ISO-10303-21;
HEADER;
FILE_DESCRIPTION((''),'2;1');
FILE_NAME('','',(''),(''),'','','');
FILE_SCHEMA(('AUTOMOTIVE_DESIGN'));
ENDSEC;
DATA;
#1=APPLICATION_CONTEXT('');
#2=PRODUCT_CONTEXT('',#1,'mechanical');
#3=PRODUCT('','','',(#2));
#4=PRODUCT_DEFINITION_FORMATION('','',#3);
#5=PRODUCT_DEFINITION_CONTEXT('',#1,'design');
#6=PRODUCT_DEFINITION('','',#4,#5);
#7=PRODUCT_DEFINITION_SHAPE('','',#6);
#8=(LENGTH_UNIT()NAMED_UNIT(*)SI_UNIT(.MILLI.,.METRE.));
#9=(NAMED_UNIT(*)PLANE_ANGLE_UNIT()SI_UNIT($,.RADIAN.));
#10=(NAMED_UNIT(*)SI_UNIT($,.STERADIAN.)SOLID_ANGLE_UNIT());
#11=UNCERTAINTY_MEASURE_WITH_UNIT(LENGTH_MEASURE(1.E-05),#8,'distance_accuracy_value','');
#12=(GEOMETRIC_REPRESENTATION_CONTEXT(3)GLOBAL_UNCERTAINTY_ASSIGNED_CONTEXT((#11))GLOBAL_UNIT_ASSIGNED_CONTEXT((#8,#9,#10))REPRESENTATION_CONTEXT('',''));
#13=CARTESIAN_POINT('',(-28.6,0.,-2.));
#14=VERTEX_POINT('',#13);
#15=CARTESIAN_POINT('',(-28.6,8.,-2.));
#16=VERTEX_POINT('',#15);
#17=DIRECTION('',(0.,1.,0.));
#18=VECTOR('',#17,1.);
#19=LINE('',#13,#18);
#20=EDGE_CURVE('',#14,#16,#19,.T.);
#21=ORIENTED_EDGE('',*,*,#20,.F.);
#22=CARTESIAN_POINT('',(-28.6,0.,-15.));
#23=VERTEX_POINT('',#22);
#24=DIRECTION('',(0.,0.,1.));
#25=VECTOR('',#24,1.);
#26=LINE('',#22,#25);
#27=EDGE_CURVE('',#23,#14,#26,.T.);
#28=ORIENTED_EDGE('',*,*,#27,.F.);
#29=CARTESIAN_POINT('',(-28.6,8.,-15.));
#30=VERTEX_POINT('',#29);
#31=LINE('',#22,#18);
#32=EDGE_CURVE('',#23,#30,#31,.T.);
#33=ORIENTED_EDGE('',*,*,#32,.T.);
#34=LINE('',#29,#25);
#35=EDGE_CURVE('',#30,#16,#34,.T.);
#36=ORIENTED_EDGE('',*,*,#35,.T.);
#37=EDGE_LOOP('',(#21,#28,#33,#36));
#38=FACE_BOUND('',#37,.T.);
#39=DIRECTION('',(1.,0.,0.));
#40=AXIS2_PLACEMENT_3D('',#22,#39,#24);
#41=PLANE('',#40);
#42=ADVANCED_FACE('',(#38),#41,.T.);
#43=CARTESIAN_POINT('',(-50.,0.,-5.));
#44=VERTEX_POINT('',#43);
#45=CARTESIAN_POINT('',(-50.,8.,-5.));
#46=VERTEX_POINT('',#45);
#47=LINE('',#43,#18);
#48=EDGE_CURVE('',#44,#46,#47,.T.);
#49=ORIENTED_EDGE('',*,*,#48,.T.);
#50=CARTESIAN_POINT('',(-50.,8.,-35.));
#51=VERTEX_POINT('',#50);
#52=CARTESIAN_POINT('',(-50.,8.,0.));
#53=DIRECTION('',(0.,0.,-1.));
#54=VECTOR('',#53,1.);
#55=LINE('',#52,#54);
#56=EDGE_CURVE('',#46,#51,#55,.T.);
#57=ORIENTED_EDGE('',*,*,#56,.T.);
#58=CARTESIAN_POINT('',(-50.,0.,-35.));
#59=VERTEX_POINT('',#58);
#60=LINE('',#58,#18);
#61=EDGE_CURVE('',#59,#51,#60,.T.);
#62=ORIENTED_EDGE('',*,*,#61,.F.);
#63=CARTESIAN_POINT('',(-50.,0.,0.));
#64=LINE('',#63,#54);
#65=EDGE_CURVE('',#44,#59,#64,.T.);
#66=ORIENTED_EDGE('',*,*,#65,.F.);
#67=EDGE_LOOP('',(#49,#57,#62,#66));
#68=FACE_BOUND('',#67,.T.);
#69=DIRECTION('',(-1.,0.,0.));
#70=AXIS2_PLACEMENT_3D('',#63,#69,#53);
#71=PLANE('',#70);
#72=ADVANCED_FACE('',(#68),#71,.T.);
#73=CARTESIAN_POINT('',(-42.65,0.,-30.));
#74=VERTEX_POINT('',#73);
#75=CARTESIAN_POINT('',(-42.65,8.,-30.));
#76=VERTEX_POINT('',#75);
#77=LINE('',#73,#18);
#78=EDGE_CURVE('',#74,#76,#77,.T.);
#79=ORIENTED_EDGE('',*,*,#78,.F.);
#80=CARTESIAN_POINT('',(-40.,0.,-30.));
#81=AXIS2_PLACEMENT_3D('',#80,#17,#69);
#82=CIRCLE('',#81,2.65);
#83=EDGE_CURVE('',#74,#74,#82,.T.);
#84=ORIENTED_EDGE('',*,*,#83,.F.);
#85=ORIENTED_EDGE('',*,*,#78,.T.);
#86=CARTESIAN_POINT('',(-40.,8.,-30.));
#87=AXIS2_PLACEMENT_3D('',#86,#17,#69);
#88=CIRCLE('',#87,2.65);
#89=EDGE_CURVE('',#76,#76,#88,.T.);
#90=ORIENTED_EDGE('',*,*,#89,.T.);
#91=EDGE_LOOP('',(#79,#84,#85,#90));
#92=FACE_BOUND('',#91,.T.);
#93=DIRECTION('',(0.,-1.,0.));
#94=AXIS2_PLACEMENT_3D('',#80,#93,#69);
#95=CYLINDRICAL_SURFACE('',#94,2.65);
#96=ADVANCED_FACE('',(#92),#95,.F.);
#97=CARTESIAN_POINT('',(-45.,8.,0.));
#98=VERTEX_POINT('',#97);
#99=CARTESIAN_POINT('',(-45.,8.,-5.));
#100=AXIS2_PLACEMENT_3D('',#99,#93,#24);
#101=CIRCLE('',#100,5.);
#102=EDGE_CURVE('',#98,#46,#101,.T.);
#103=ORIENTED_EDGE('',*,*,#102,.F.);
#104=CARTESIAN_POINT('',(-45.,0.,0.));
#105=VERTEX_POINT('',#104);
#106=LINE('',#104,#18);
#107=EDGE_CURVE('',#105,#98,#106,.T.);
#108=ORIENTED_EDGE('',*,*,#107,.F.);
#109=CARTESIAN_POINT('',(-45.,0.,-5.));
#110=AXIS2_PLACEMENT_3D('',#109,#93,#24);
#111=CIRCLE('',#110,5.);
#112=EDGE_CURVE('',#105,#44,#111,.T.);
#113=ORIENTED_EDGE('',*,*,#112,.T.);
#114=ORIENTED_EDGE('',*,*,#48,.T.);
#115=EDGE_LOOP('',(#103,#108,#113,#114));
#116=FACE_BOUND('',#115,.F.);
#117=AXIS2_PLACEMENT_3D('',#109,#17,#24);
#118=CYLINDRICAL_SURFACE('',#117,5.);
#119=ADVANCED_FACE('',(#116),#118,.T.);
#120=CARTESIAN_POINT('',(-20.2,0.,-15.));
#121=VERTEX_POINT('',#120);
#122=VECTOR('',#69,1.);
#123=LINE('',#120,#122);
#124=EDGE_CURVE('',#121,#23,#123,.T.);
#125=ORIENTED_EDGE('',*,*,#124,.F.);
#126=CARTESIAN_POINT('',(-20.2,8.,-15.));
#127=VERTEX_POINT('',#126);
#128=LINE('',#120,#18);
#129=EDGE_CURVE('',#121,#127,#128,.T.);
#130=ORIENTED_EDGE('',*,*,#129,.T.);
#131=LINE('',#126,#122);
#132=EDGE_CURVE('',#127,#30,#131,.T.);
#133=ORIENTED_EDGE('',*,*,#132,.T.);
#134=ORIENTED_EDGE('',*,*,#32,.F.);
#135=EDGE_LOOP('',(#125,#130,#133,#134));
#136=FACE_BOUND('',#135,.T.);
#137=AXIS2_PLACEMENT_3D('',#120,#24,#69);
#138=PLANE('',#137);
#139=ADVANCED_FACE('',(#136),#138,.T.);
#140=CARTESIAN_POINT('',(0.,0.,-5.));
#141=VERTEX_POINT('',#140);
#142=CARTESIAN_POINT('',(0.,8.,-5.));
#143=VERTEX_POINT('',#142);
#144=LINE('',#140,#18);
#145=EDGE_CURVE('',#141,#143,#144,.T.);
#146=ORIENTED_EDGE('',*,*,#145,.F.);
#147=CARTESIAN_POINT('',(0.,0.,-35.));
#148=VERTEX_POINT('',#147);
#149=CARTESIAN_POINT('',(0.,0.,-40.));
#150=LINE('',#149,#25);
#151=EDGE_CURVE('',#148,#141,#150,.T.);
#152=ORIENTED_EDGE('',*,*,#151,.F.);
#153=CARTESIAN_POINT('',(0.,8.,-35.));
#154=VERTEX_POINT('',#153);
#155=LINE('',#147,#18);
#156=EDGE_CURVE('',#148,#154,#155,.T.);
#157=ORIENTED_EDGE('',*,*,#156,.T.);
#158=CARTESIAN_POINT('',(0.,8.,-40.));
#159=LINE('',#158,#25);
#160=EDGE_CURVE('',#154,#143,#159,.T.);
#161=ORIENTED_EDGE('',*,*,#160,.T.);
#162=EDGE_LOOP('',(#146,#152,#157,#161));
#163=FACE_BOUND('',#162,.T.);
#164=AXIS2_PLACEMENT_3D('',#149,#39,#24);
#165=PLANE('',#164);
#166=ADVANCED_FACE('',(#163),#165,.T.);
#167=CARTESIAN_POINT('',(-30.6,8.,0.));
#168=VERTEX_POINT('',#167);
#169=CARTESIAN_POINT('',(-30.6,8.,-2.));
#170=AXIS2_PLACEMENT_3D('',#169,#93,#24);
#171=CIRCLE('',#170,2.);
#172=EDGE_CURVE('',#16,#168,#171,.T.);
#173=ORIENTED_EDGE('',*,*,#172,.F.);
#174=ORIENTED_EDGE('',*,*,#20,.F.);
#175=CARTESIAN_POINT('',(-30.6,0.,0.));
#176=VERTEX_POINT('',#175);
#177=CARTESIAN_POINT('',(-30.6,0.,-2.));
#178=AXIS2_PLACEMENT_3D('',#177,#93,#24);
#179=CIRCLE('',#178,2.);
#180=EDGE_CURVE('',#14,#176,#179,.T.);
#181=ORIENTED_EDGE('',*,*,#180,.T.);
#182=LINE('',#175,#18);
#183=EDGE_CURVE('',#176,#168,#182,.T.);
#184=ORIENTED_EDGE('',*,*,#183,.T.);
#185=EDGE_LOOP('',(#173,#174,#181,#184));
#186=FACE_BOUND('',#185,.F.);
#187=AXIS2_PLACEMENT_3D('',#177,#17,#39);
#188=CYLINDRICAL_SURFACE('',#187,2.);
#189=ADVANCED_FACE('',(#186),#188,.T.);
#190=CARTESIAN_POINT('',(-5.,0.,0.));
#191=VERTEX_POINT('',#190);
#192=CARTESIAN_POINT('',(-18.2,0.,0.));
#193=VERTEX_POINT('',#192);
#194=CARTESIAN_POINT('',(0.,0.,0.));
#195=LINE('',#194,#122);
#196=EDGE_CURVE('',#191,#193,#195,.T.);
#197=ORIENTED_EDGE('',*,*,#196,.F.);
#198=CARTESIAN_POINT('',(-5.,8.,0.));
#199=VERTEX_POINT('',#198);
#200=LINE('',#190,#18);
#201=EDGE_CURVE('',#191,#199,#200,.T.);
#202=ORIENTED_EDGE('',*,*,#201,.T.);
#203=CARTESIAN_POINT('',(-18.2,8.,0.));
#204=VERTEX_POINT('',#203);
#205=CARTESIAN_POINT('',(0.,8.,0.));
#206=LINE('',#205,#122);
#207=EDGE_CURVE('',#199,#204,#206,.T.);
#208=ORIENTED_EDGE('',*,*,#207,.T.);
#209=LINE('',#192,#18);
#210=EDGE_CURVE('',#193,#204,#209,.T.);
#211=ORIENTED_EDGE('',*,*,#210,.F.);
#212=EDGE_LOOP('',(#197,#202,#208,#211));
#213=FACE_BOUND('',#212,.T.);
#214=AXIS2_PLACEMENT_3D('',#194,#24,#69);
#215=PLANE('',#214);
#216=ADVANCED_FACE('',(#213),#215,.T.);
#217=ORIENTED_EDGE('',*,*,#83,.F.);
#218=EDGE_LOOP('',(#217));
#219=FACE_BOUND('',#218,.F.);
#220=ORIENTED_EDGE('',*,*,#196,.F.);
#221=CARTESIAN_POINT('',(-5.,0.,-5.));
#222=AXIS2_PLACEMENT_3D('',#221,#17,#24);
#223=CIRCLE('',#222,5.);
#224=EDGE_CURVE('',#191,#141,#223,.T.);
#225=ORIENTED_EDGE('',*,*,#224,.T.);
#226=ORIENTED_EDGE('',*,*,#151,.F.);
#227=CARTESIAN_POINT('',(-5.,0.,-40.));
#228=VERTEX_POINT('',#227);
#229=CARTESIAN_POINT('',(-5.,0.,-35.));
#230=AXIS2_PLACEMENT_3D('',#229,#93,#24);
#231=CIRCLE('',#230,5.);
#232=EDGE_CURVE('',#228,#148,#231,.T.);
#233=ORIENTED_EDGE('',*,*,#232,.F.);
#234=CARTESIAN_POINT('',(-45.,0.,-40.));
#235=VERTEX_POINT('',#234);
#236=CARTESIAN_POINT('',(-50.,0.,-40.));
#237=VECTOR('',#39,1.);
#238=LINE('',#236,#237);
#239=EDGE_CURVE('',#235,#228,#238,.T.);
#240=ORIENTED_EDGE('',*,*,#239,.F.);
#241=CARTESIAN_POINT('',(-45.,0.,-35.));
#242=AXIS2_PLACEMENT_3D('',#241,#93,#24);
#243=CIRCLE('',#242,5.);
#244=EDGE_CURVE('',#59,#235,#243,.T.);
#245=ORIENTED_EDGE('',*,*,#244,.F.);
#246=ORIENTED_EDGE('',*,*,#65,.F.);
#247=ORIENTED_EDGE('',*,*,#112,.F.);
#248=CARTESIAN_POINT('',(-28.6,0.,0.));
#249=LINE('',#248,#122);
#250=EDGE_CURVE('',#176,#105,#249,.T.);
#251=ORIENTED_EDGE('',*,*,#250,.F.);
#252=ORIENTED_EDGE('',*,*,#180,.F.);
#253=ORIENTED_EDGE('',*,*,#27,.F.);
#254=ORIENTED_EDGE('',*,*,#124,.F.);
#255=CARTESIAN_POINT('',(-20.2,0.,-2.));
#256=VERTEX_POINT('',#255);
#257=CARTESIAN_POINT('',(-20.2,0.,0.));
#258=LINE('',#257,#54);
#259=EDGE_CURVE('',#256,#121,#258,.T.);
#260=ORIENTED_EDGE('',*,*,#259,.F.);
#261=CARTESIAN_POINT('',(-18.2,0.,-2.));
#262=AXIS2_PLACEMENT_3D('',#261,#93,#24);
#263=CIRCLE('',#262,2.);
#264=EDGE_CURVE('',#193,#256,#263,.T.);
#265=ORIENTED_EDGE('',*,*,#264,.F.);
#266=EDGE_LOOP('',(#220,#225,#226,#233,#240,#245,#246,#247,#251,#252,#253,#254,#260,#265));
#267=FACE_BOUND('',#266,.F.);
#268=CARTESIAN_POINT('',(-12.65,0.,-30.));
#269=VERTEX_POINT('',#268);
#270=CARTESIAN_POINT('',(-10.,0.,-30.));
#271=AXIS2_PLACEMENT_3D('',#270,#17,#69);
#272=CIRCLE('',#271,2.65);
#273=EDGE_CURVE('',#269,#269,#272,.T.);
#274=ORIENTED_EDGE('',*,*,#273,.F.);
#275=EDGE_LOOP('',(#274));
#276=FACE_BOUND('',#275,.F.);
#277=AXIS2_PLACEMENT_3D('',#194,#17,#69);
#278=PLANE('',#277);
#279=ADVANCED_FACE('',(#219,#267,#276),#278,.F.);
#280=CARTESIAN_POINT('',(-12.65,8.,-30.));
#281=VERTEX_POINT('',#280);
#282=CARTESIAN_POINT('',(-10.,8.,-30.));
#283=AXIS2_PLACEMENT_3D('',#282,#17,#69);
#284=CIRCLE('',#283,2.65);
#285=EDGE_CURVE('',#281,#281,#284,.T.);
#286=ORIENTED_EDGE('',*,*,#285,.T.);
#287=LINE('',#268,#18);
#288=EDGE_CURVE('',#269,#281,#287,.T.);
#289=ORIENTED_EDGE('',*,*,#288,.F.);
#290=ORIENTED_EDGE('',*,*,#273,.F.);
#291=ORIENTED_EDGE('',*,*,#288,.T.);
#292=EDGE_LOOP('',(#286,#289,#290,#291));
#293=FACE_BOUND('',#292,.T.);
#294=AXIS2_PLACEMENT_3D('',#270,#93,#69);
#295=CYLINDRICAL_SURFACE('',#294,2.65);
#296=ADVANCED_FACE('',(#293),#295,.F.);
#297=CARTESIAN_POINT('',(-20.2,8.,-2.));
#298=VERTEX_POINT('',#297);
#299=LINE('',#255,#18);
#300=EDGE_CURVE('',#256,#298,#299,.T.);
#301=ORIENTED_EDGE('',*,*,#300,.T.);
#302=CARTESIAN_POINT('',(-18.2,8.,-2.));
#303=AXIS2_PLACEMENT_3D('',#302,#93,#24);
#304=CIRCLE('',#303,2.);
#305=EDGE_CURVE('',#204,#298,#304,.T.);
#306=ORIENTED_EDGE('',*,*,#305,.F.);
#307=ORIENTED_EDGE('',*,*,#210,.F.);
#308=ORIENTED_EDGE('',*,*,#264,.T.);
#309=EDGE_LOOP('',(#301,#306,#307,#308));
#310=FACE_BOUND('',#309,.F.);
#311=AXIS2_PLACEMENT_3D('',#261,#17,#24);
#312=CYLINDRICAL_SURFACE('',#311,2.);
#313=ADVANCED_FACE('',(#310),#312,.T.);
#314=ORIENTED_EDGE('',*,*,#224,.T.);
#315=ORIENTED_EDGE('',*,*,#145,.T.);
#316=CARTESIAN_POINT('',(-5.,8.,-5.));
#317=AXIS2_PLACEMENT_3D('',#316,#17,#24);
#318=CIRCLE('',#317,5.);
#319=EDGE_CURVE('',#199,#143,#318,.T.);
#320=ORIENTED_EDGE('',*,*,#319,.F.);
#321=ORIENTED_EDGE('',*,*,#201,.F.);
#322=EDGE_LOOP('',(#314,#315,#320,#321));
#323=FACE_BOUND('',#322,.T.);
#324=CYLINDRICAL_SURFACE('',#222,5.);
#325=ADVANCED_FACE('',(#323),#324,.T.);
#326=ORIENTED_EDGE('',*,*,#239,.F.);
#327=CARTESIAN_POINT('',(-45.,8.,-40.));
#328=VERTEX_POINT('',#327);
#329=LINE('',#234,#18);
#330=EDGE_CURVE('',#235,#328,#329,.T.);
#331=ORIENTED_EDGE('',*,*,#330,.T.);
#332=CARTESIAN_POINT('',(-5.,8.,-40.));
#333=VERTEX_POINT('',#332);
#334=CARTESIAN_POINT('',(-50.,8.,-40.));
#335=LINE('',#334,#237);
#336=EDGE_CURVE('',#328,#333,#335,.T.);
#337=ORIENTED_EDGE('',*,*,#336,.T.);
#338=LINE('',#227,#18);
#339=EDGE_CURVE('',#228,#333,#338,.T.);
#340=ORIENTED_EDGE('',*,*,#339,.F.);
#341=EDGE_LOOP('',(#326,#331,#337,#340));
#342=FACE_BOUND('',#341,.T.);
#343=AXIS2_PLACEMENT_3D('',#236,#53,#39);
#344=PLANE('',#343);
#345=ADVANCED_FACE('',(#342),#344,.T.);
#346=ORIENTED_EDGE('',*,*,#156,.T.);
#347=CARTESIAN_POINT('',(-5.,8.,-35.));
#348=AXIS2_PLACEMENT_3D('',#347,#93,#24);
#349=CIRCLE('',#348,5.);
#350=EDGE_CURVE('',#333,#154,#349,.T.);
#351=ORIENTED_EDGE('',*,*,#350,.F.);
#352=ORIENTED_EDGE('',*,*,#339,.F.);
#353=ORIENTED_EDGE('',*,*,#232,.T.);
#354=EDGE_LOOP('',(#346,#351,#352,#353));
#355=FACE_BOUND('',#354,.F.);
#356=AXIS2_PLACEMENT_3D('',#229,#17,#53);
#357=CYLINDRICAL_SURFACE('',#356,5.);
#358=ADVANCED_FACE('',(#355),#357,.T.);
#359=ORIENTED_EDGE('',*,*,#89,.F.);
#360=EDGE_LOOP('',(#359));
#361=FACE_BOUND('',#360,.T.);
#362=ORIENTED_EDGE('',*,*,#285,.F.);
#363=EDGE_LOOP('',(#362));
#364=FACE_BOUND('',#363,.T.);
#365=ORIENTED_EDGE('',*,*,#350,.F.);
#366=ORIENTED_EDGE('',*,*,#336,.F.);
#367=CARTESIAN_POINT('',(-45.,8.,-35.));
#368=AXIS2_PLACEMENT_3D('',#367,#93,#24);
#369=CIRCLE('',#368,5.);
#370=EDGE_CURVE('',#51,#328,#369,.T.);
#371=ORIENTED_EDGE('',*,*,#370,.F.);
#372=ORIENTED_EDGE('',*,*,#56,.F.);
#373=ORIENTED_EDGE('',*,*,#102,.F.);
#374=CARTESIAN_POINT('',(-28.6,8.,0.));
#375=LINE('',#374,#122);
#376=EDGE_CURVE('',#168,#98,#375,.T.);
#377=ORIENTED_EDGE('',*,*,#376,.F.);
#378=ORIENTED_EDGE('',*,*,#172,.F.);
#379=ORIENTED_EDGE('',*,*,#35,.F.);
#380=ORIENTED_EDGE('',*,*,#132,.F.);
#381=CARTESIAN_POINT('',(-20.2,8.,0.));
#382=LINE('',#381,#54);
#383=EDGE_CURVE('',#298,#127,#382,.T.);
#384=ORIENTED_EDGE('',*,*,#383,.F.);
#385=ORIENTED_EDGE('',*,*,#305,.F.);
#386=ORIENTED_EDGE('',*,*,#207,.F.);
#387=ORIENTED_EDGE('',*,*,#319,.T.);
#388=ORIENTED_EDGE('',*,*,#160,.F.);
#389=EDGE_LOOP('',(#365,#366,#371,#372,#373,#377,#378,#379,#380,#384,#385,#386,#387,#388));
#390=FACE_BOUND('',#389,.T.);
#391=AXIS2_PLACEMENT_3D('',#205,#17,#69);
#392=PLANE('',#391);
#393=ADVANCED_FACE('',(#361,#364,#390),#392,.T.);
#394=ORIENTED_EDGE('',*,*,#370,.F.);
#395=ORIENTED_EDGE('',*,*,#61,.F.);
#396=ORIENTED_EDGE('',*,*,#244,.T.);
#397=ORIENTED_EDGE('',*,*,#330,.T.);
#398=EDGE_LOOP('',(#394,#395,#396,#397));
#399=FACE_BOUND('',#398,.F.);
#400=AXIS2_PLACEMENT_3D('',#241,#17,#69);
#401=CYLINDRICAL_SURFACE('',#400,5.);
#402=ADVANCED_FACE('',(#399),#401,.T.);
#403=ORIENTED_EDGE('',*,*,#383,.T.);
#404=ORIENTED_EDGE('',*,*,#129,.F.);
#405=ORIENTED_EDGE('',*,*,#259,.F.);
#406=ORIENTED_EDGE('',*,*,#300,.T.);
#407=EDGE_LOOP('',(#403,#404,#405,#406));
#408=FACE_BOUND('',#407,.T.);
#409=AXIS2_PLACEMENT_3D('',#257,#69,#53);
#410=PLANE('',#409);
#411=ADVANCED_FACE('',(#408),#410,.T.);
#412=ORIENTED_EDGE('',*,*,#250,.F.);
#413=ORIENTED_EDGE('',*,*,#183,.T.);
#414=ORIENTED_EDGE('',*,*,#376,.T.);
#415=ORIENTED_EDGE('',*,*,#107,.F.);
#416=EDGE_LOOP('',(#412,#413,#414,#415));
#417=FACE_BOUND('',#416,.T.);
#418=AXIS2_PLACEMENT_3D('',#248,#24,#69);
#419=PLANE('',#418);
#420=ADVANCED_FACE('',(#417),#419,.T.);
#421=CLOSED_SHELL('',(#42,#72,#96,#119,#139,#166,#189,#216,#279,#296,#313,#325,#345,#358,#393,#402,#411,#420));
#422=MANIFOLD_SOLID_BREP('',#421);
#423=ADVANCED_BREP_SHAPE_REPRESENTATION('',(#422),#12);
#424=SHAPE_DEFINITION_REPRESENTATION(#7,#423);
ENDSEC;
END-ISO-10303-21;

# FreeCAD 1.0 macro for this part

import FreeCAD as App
import Part
import Sketcher
from FreeCAD import Vector


def edges_at(feature, points):
    """Names of the edges that pass closest to the given points."""
    edges = feature.Shape.Edges
    near = lambda p: min(range(len(edges)), key=lambda i: edges[i].distToShape(Part.Vertex(*p))[0])
    return sorted({f"Edge{near(p) + 1}" for p in points})

doc = App.newDocument("Part")
body = doc.addObject("PartDesign::Body", "Body")

sketch1 = doc.addObject("Sketcher::SketchObject", "Sketch")
body.addObject(sketch1)
sketch1.AttachmentSupport = (doc.XZ_Plane, [""])
sketch1.MapMode = "FlatFace"
sketch1.addGeometry(Part.LineSegment(Vector(-20.2, 0, 0), Vector(0, 0, 0)), False)
sketch1.addGeometry(Part.LineSegment(Vector(0, 0, 0), Vector(0, -40, 0)), False)
sketch1.addGeometry(Part.LineSegment(Vector(0, -40, 0), Vector(-50, -40, 0)), False)
sketch1.addGeometry(Part.LineSegment(Vector(-50, -40, 0), Vector(-50, 0, 0)), False)
sketch1.addGeometry(Part.LineSegment(Vector(-50, 0, 0), Vector(-28.6, 0, 0)), False)
sketch1.addGeometry(Part.LineSegment(Vector(-28.6, 0, 0), Vector(-28.6, -15, 0)), False)
sketch1.addGeometry(Part.LineSegment(Vector(-28.6, -15, 0), Vector(-20.2, -15, 0)), False)
sketch1.addGeometry(Part.LineSegment(Vector(-20.2, -15, 0), Vector(-20.2, 0, 0)), False)
sketch1.addGeometry(Part.Circle(Vector(-10, -30, 0), Vector(0, 0, 1), 2.6), False)
sketch1.addGeometry(Part.Circle(Vector(-40, -30, 0), Vector(0, 0, 1), 2.6), False)
sketch1.addConstraint(Sketcher.Constraint("Coincident", 0, 2, 1, 1))
sketch1.addConstraint(Sketcher.Constraint("Coincident", 1, 2, 2, 1))
sketch1.addConstraint(Sketcher.Constraint("Coincident", 2, 2, 3, 1))
sketch1.addConstraint(Sketcher.Constraint("Coincident", 3, 2, 4, 1))
sketch1.addConstraint(Sketcher.Constraint("Coincident", 4, 2, 5, 1))
sketch1.addConstraint(Sketcher.Constraint("Coincident", 5, 2, 6, 1))
sketch1.addConstraint(Sketcher.Constraint("Coincident", 6, 2, 7, 1))
sketch1.addConstraint(Sketcher.Constraint("Coincident", 7, 2, 0, 1))
sketch1.addConstraint(Sketcher.Constraint("Horizontal", 0))
sketch1.addConstraint(Sketcher.Constraint("Vertical", 1))
sketch1.addConstraint(Sketcher.Constraint("Horizontal", 2))
sketch1.addConstraint(Sketcher.Constraint("Vertical", 3))
sketch1.addConstraint(Sketcher.Constraint("Horizontal", 4))
sketch1.addConstraint(Sketcher.Constraint("Vertical", 5))
sketch1.addConstraint(Sketcher.Constraint("Horizontal", 6))
sketch1.addConstraint(Sketcher.Constraint("Vertical", 7))
sketch1.addConstraint(Sketcher.Constraint("Coincident", 0, 2, -1, 1))
sketch1.addConstraint(Sketcher.Constraint("Equal", 8, 9))
sketch1.addConstraint(Sketcher.Constraint("PointOnObject", 3, 2, -1))
sketch1.addConstraint(Sketcher.Constraint("Horizontal", 8, 3, 9, 3))
sketch1.addConstraint(Sketcher.Constraint("Diameter", 8, 5.3))
sketch1.addConstraint(Sketcher.Constraint("DistanceX", 2, 2, 2, 1, 50.0))
sketch1.addConstraint(Sketcher.Constraint("DistanceY", 1, 2, 1, 1, 40.0))
sketch1.addConstraint(Sketcher.Constraint("DistanceY", 5, 2, 5, 1, 15.0))
sketch1.addConstraint(Sketcher.Constraint("DistanceX", 0, 1, 0, 2, 20.2))
sketch1.addConstraint(Sketcher.Constraint("DistanceX", 6, 1, 6, 2, 8.4))
sketch1.addConstraint(Sketcher.Constraint("DistanceX", 8, 3, -1, 1, 10.0))
sketch1.addConstraint(Sketcher.Constraint("DistanceX", 9, 3, -1, 1, 40.0))
sketch1.addConstraint(Sketcher.Constraint("DistanceY", 1, 2, 8, 3, 10.0))
pad1 = doc.addObject("PartDesign::Pad", "Pad")
body.addObject(pad1)
pad1.Profile = sketch1
pad1.Length = 8
pad1.Reversed = True
doc.recompute()

fillet = doc.addObject("PartDesign::Fillet", "Fillet")
body.addObject(fillet)
fillet.Base = (pad1, edges_at(pad1, [
    (0, 4, -40),
    (-50, 4, -40),
    (0, 4, 0),
    (-50, 4, 0),
]))
fillet.Radius = 5
doc.recompute()

fillet2 = doc.addObject("PartDesign::Fillet", "Fillet001")
body.addObject(fillet2)
fillet2.Base = (fillet, edges_at(fillet, [(-28.6, 4, 0), (-20.2, 4, 0)]))
fillet2.Radius = 2

doc.recompute()
